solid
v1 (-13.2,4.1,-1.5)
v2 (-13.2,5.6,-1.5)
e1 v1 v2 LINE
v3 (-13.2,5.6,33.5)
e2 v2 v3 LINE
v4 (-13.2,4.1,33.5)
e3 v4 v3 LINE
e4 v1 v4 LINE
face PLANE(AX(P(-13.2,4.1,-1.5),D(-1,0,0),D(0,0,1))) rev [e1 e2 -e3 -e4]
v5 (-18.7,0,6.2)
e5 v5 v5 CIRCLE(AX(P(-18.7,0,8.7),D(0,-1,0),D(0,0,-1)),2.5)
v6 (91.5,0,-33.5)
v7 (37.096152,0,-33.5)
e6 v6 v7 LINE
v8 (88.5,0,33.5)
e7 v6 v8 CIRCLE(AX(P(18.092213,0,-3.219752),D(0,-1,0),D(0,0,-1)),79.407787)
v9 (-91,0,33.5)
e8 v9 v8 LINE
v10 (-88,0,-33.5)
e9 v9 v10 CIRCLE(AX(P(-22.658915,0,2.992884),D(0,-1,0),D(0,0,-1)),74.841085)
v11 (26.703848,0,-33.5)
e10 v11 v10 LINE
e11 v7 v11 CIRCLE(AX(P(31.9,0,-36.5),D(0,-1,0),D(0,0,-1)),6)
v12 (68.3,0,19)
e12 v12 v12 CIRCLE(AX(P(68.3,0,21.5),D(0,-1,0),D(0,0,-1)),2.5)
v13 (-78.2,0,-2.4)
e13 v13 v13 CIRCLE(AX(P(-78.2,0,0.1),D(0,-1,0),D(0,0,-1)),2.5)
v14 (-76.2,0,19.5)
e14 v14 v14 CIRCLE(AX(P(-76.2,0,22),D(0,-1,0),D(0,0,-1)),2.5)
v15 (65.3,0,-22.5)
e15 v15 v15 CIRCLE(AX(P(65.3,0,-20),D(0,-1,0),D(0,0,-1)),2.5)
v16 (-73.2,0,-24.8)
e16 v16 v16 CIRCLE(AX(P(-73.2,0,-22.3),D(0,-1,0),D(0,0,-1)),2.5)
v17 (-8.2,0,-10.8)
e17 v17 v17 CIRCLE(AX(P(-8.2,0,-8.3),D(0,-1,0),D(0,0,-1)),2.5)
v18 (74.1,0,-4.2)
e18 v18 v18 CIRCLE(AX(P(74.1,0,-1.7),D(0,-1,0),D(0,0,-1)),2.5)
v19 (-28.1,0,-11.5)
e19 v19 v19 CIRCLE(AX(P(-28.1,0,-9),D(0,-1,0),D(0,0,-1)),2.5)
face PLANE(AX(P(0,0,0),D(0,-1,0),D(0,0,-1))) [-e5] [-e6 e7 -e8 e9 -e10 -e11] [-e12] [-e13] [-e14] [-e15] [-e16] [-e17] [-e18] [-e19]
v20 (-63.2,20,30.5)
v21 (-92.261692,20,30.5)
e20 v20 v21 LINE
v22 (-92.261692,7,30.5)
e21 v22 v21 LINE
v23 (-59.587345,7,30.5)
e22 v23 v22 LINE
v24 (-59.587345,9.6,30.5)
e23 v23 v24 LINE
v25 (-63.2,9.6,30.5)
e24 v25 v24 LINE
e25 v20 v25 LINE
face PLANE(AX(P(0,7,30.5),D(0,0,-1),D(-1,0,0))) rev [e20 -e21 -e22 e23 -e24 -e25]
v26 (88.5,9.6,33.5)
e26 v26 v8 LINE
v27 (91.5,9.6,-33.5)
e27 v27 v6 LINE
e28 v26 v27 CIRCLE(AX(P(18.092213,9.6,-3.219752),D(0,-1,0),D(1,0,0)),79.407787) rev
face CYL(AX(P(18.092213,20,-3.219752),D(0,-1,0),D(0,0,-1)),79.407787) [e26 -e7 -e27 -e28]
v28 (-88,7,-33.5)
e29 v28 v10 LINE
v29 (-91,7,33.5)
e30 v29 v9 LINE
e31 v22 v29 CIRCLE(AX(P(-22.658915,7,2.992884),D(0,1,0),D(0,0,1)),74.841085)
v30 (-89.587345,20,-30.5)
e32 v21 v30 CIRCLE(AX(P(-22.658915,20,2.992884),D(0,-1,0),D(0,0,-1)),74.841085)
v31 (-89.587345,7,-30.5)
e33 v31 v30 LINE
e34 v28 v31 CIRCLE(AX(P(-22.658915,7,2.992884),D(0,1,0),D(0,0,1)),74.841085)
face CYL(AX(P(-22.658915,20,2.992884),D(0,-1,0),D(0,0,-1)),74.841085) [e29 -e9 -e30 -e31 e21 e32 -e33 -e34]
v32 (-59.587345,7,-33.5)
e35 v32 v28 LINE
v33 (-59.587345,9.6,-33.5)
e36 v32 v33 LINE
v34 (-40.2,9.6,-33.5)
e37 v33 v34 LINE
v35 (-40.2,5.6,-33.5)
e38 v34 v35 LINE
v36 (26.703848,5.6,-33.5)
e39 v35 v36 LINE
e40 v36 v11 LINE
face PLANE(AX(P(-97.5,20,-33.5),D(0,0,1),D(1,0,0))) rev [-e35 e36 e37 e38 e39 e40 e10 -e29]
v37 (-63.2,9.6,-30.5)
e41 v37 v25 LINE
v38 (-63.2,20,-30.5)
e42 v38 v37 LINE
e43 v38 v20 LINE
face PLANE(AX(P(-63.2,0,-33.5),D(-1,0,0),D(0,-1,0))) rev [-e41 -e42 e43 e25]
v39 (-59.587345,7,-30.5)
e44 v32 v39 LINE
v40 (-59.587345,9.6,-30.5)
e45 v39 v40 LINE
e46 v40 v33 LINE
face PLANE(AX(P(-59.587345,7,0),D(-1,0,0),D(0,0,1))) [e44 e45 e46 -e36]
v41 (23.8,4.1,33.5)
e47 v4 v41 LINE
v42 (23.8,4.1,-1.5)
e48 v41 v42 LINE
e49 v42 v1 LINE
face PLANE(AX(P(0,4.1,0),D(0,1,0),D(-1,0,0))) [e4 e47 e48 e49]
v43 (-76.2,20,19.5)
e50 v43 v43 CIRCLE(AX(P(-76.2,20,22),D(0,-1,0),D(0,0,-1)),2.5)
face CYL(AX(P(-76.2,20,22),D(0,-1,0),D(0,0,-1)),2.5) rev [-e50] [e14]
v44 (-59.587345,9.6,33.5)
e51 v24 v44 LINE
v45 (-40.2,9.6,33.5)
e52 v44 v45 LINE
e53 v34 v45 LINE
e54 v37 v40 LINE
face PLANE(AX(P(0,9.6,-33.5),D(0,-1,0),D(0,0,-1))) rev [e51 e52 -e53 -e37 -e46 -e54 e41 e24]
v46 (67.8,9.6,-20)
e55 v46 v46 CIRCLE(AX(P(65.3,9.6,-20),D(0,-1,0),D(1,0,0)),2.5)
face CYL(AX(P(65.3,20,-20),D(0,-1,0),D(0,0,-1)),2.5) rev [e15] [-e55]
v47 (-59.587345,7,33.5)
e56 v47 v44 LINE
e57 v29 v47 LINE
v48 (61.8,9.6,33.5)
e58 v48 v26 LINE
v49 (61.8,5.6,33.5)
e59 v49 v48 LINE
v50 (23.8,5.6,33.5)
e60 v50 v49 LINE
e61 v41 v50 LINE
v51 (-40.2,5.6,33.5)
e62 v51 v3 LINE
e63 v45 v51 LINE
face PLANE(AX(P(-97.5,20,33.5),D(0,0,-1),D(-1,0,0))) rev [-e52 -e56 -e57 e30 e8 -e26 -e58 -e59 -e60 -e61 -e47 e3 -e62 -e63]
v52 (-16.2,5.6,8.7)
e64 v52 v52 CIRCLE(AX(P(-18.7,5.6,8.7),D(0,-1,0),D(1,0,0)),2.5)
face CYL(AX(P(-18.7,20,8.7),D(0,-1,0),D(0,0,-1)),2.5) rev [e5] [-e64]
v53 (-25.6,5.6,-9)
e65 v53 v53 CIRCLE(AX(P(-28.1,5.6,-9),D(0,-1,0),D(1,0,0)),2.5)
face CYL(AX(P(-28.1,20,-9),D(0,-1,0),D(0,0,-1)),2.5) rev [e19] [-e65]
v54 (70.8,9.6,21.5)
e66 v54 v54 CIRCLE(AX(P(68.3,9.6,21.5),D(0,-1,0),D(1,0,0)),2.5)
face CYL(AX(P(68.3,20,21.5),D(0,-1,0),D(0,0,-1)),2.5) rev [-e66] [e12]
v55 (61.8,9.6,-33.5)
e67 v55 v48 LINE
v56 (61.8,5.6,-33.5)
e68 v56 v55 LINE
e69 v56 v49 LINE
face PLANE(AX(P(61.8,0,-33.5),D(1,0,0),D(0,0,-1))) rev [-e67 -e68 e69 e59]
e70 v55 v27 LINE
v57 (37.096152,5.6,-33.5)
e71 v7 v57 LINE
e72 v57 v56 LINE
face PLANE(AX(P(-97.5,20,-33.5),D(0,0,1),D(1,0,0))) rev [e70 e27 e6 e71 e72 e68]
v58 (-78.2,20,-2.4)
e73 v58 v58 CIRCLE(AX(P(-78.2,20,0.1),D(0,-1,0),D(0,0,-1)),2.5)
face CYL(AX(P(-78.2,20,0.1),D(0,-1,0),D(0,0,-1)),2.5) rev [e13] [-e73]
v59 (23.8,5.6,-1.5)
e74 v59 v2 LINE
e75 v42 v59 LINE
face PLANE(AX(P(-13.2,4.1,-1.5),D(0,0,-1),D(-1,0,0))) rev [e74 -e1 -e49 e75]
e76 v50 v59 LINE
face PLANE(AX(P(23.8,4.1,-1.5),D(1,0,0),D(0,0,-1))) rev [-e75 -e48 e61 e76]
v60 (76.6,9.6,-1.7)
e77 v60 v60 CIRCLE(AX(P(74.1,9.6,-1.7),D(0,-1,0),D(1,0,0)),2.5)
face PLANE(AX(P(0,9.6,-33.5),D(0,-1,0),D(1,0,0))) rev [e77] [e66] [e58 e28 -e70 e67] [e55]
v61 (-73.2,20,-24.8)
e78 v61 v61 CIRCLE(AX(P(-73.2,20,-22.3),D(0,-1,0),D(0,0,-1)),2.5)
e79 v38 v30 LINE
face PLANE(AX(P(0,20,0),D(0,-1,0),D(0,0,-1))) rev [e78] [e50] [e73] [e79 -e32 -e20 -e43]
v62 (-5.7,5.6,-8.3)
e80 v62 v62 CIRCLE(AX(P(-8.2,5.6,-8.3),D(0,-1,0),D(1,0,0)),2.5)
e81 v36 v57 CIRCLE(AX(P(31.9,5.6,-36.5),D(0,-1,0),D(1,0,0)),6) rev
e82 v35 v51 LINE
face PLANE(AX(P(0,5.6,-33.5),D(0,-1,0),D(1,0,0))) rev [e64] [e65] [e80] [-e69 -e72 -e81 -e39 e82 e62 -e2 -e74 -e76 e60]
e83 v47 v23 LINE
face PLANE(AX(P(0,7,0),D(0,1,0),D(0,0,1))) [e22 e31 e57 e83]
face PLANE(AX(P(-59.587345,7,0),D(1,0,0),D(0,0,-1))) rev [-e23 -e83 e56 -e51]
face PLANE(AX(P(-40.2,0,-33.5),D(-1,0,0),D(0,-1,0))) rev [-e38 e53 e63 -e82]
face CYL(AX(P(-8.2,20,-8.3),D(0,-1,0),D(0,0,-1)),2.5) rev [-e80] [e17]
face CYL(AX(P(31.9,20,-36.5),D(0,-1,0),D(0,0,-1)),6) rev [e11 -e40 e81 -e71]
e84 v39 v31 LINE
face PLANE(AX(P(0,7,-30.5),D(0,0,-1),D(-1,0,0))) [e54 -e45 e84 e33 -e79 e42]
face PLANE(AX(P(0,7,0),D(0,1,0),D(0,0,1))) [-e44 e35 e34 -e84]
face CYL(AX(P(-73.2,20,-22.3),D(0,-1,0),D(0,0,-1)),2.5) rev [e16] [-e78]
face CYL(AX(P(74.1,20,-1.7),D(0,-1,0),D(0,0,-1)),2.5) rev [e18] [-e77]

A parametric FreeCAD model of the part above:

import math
import FreeCAD as App
import Part
import Sketcher

V = App.Vector


def add_polygon(sketch, points):
    """Adds a closed chain of lines whose ends are joined by coincident constraints."""
    first, n = sketch.GeometryCount, len(points)
    for a, b in zip(points, points[1:] + points[:1]):
        sketch.addGeometry(Part.LineSegment(App.Vector(*a, 0), App.Vector(*b, 0)), False)
    for i in range(n):
        sketch.addConstraint(Sketcher.Constraint("Coincident", first + i, 2, first + (i + 1) % n, 1))

doc = App.newDocument("Part")
params = doc.addObject("Spreadsheet::Sheet", "Params")
for row, (alias, value) in enumerate([
    ("sketch1_width", "195 mm"),
    ("sketch1_height", "67 mm"),
    ("pad1_length", "20 mm"),
    ("sketch2_diameter", "12 mm"),
    ("sketch2_width", "9 mm"),
    ("sketch2_width2", "6 mm"),
    ("sketch2_width3", "9.5 mm"),
    ("sketch2_width4", "6.5 mm"),
    ("pocket1_length", "20 mm"),
    ("sketch3_width", "102 mm"),
    ("sketch3_width2", "23 mm"),
    ("sketch3_height", "4 mm"),
    ("sketch3_width3", "160.7 mm"),
    ("sketch3_height2", "10.4 mm"),
    ("sketch4_width", "30 mm"),
    ("sketch4_height", "3 mm"),
    ("pocket3_length", "13 mm"),
    ("sketch5_diameter", "5 mm"),
    ("sketch6_width", "37 mm"),
    ("sketch6_height", "35 mm"),
    ("pocket5_length", "1.5 mm"),
], start=1):
    params.set(f"A{row}", alias)
    params.set(f"B{row}", "=" + value)
    params.setAlias(f"B{row}", alias)

body = doc.addObject("PartDesign::Body", "Body")

sketch1 = doc.addObject("Sketcher::SketchObject", "Sketch")
body.addObject(sketch1)
sketch1.AttachmentSupport = (doc.XZ_Plane, [""])
sketch1.MapMode = "FlatFace"
add_polygon(sketch1, [(-98, -34), (-98, 34), (98, 34), (98, -34)])
sketch1.addConstraint(Sketcher.Constraint("Vertical", 0))
sketch1.addConstraint(Sketcher.Constraint("Horizontal", 1))
sketch1.addConstraint(Sketcher.Constraint("Vertical", 2))
sketch1.addConstraint(Sketcher.Constraint("Horizontal", 3))
sketch1.addConstraint(Sketcher.Constraint("Symmetric", 0, 2, 2, 2, -1, 1))
sketch1.addConstraint(Sketcher.Constraint("DistanceX", 1, 1, 1, 2, 195.0))
sketch1.addConstraint(Sketcher.Constraint("DistanceY", 0, 1, 0, 2, 67.0))
sketch1.setExpression("Constraints[9]", "Params.sketch1_width")
sketch1.setExpression("Constraints[10]", "Params.sketch1_height")
pad1 = doc.addObject("PartDesign::Pad", "Pad")
body.addObject(pad1)
pad1.Profile = sketch1
pad1.setExpression("Length", "Params.pad1_length")
pad1.Reversed = True

sketch2 = doc.addObject("Sketcher::SketchObject", "Sketch001")
body.addObject(sketch2)
sketch2.AttachmentSupport = (doc.XZ_Plane, [""])
sketch2.MapMode = "FlatFace"
sketch2.addGeometry(Part.LineSegment(V(98, -3, 0), V(98, 34, 0)), False)
sketch2.addGeometry(Part.LineSegment(V(98, 34, 0), V(88, 34, 0)), False)
sketch2.addGeometry(Part.ArcOfCircle(Part.Circle(V(18, -3, 0), V(0, 0, 1), 79), math.radians(0), math.radians(28)), False)
sketch2.addGeometry(Part.LineSegment(V(98, -34, 0), V(98, -3, 0)), False)
sketch2.addGeometry(Part.ArcOfCircle(Part.Circle(V(18, -3, 0), V(0, 0, 1), 79), math.radians(-22), math.radians(0)), False)
sketch2.addGeometry(Part.LineSegment(V(92, -34, 0), V(98, -34, 0)), False)
sketch2.addGeometry(Part.ArcOfCircle(Part.Circle(V(-23, 3, 0), V(0, 0, 1), 75), math.radians(180), math.radians(209)), False)
sketch2.addGeometry(Part.LineSegment(V(-98, 3, 0), V(-98, -34, 0)), False)
sketch2.addGeometry(Part.LineSegment(V(-98, -34, 0), V(-88, -34, 0)), False)
sketch2.addGeometry(Part.ArcOfCircle(Part.Circle(V(-23, 3, 0), V(0, 0, 1), 75), math.radians(156), math.radians(180)), False)
sketch2.addGeometry(Part.LineSegment(V(-91, 34, 0), V(-98, 34, 0)), False)
sketch2.addGeometry(Part.LineSegment(V(-98, 34, 0), V(-98, 3, 0)), False)
sketch2.addGeometry(Part.Circle(V(32, -36, 0), V(0, 0, 1), 6), False)
sketch2.addConstraint(Sketcher.Constraint("Coincident", 0, 2, 1, 1))
sketch2.addConstraint(Sketcher.Constraint("Coincident", 1, 2, 2, 2))
sketch2.addConstraint(Sketcher.Constraint("Tangent", 2, 1, 0, 1))
sketch2.addConstraint(Sketcher.Constraint("Tangent", 3, 2, 4, 2))
sketch2.addConstraint(Sketcher.Constraint("Coincident", 4, 1, 5, 1))
sketch2.addConstraint(Sketcher.Constraint("Coincident", 5, 2, 3, 1))
sketch2.addConstraint(Sketcher.Constraint("Tangent", 6, 1, 7, 1))
sketch2.addConstraint(Sketcher.Constraint("Coincident", 7, 2, 8, 1))
sketch2.addConstraint(Sketcher.Constraint("Coincident", 8, 2, 6, 2))
sketch2.addConstraint(Sketcher.Constraint("Coincident", 9, 1, 10, 1))
sketch2.addConstraint(Sketcher.Constraint("Coincident", 10, 2, 11, 1))
sketch2.addConstraint(Sketcher.Constraint("Tangent", 11, 2, 9, 2))
sketch2.addConstraint(Sketcher.Constraint("Vertical", 0))
sketch2.addConstraint(Sketcher.Constraint("Horizontal", 1))
sketch2.addConstraint(Sketcher.Constraint("Vertical", 3))
sketch2.addConstraint(Sketcher.Constraint("Horizontal", 5))
sketch2.addConstraint(Sketcher.Constraint("Vertical", 7))
sketch2.addConstraint(Sketcher.Constraint("Horizontal", 8))
sketch2.addConstraint(Sketcher.Constraint("Horizontal", 10))
sketch2.addConstraint(Sketcher.Constraint("Vertical", 11))
sketch2.addConstraint(Sketcher.Constraint("Coincident", 4, 3, 2, 3))
sketch2.addConstraint(Sketcher.Constraint("Coincident", 9, 3, 6, 3))
sketch2.addConstraint(Sketcher.Constraint("Equal", 2, 4))
sketch2.addConstraint(Sketcher.Constraint("Equal", 6, 9))
sketch2.addConstraint(Sketcher.Constraint("Symmetric", 0, 2, 7, 2, -1, 1))
sketch2.addConstraint(Sketcher.Constraint("Horizontal", 5, 2, 7, 2))
sketch2.addConstraint(Sketcher.Constraint("Horizontal", 1, 2, 9, 1))
sketch2.addConstraint(Sketcher.Constraint("Diameter", 12, 12.0))
sketch2.addConstraint(Sketcher.Constraint("DistanceX", 1, 2, 1, 1, 9.0))
sketch2.addConstraint(Sketcher.Constraint("DistanceX", 5, 1, 5, 2, 6.0))
sketch2.addConstraint(Sketcher.Constraint("DistanceX", 8, 1, 8, 2, 9.5))
sketch2.addConstraint(Sketcher.Constraint("DistanceX", 10, 2, 10, 1, 6.5))
sketch2.addConstraint(Sketcher.Constraint("DistanceX", 8, 2, -1, 1, 88.0))
sketch2.addConstraint(Sketcher.Constraint("DistanceY", 12, 3, 0, 2, 70.0))
sketch2.addConstraint(Sketcher.Constraint("DistanceY", 12, 3, 4, 1, 3.0))
sketch2.addConstraint(Sketcher.Constraint("DistanceX", -1, 1, 12, 3, 31.9))
sketch2.setExpression("Constraints[27]", "Params.sketch2_diameter")
sketch2.setExpression("Constraints[28]", "Params.sketch2_width")
sketch2.setExpression("Constraints[29]", "Params.sketch2_width2")
sketch2.setExpression("Constraints[30]", "Params.sketch2_width3")
sketch2.setExpression("Constraints[31]", "Params.sketch2_width4")
pocket1 = doc.addObject("PartDesign::Pocket", "Pocket")
body.addObject(pocket1)
pocket1.Profile = sketch2
pocket1.setExpression("Length", "Params.pocket1_length")

sketch3 = doc.addObject("Sketcher::SketchObject", "Sketch002")
body.addObject(sketch3)
sketch3.AttachmentSupport = (doc.XY_Plane, [""])
sketch3.MapMode = "FlatFace"
sketch3.AttachmentOffset = App.Placement(V(0, 0, 33.5), App.Rotation())
add_polygon(sketch3, [(-63.2, 9.6), (-63.2, 20), (97.5, 20), (97.5, 9.6), (61.8, 9.6), (61.8, 5.6), (-40.2, 5.6), (-40.2, 9.6)])
sketch3.addConstraint(Sketcher.Constraint("Vertical", 0))
sketch3.addConstraint(Sketcher.Constraint("Horizontal", 1))
sketch3.addConstraint(Sketcher.Constraint("Vertical", 2))
sketch3.addConstraint(Sketcher.Constraint("Horizontal", 3))
sketch3.addConstraint(Sketcher.Constraint("Vertical", 4))
sketch3.addConstraint(Sketcher.Constraint("Horizontal", 5))
sketch3.addConstraint(Sketcher.Constraint("Vertical", 6))
sketch3.addConstraint(Sketcher.Constraint("Horizontal", 7))
sketch3.addConstraint(Sketcher.Constraint("Horizontal", 3, 2, 6, 2))
sketch3.addConstraint(Sketcher.Constraint("DistanceX", 5, 2, 5, 1, 102.0))
sketch3.addConstraint(Sketcher.Constraint("DistanceX", 7, 2, 7, 1, 23.0))
sketch3.addConstraint(Sketcher.Constraint("DistanceY", 4, 2, 4, 1, 4.0))
sketch3.addConstraint(Sketcher.Constraint("DistanceX", 1, 1, 1, 2, 160.7))
sketch3.addConstraint(Sketcher.Constraint("DistanceY", 0, 1, 0, 2, 10.4))
sketch3.addConstraint(Sketcher.Constraint("DistanceY", -1, 1, 0, 2, 20.0))
sketch3.addConstraint(Sketcher.Constraint("DistanceX", 0, 2, -1, 1, 63.2))
sketch3.setExpression("Constraints[17]", "Params.sketch3_width")
sketch3.setExpression("Constraints[18]", "Params.sketch3_width2")
sketch3.setExpression("Constraints[19]", "Params.sketch3_height")
sketch3.setExpression("Constraints[20]", "Params.sketch3_width3")
sketch3.setExpression("Constraints[21]", "Params.sketch3_height2")
pocket2 = doc.addObject("PartDesign::Pocket", "Pocket001")
body.addObject(pocket2)
pocket2.Profile = sketch3
pocket2.Type = "ThroughAll"

sketch4 = doc.addObject("Sketcher::SketchObject", "Sketch003")
body.addObject(sketch4)
sketch4.AttachmentSupport = (doc.XZ_Plane, [""])
sketch4.MapMode = "FlatFace"
sketch4.AttachmentOffset = App.Placement(V(0, 0, -7), App.Rotation())
sketch4.addGeometry(Part.ArcOfCircle(Part.Circle(V(-22.7, 3, 0), V(0, 0, 1), 74.8), math.radians(-153.42), math.radians(-150.82)), False)
sketch4.addGeometry(Part.LineSegment(V(-89.6, -30.5, 0), V(-59.6, -30.5, 0)), False)
sketch4.addGeometry(Part.LineSegment(V(-59.6, -30.5, 0), V(-59.6, -33.5, 0)), False)
sketch4.addGeometry(Part.LineSegment(V(-59.6, -33.5, 0), V(-88, -33.5, 0)), False)
sketch4.addGeometry(Part.ArcOfCircle(Part.Circle(V(-22.7, 3, 0), V(0, 0, 1), 74.8), math.radians(155.94), math.radians(158.44)), False)
sketch4.addGeometry(Part.LineSegment(V(-91, 33.5, 0), V(-59.6, 33.5, 0)), False)
sketch4.addGeometry(Part.LineSegment(V(-59.6, 33.5, 0), V(-59.6, 30.5, 0)), False)
sketch4.addGeometry(Part.LineSegment(V(-59.6, 30.5, 0), V(-92.3, 30.5, 0)), False)
sketch4.addConstraint(Sketcher.Constraint("Coincident", 0, 1, 1, 1))
sketch4.addConstraint(Sketcher.Constraint("Coincident", 1, 2, 2, 1))
sketch4.addConstraint(Sketcher.Constraint("Coincident", 2, 2, 3, 1))
sketch4.addConstraint(Sketcher.Constraint("Coincident", 3, 2, 0, 2))
sketch4.addConstraint(Sketcher.Constraint("Coincident", 4, 1, 5, 1))
sketch4.addConstraint(Sketcher.Constraint("Coincident", 5, 2, 6, 1))
sketch4.addConstraint(Sketcher.Constraint("Coincident", 6, 2, 7, 1))
sketch4.addConstraint(Sketcher.Constraint("Coincident", 7, 2, 4, 2))
sketch4.addConstraint(Sketcher.Constraint("Horizontal", 1))
sketch4.addConstraint(Sketcher.Constraint("Vertical", 2))
sketch4.addConstraint(Sketcher.Constraint("Horizontal", 3))
sketch4.addConstraint(Sketcher.Constraint("Horizontal", 5))
sketch4.addConstraint(Sketcher.Constraint("Vertical", 6))
sketch4.addConstraint(Sketcher.Constraint("Horizontal", 7))
sketch4.addConstraint(Sketcher.Constraint("Coincident", 4, 3, 0, 3))
sketch4.addConstraint(Sketcher.Constraint("Equal", 0, 4))
sketch4.addConstraint(Sketcher.Constraint("Symmetric", 2, 2, 5, 2, -1))
sketch4.addConstraint(Sketcher.Constraint("Equal", 2, 6))
sketch4.addConstraint(Sketcher.Constraint("DistanceX", 1, 1, 1, 2, 30.0))
sketch4.addConstraint(Sketcher.Constraint("DistanceY", 2, 2, 2, 1, 3.0))
sketch4.addConstraint(Sketcher.Constraint("DistanceX", 3, 2, -1, 1, 88.0))
sketch4.addConstraint(Sketcher.Constraint("DistanceX", 4, 1, -1, 1, 91.0))
sketch4.addConstraint(Sketcher.Constraint("DistanceY", 0, 1, 4, 1, 64.0))
sketch4.addConstraint(Sketcher.Constraint("Radius", 0, 74.841086))
sketch4.setExpression("Constraints[18]", "Params.sketch4_width")
sketch4.setExpression("Constraints[19]", "Params.sketch4_height")
pocket3 = doc.addObject("PartDesign::Pocket", "Pocket002")
body.addObject(pocket3)
pocket3.Profile = sketch4
pocket3.setExpression("Length", "Params.pocket3_length")

sketch5 = doc.addObject("Sketcher::SketchObject", "Sketch004")
body.addObject(sketch5)
sketch5.AttachmentSupport = (doc.XZ_Plane, [""])
sketch5.MapMode = "FlatFace"
sketch5.addGeometry(Part.Circle(V(-28.1, -9, 0), V(0, 0, 1), 2.5), False)
sketch5.addGeometry(Part.Circle(V(-8.2, -8.3, 0), V(0, 0, 1), 2.5), False)
sketch5.addGeometry(Part.Circle(V(-18.7, 8.7, 0), V(0, 0, 1), 2.5), False)
sketch5.addGeometry(Part.Circle(V(-76.2, 22, 0), V(0, 0, 1), 2.5), False)
sketch5.addGeometry(Part.Circle(V(-78.2, 0.1, 0), V(0, 0, 1), 2.5), False)
sketch5.addGeometry(Part.Circle(V(-73.2, -22.3, 0), V(0, 0, 1), 2.5), False)
sketch5.addGeometry(Part.Circle(V(65.3, -20, 0), V(0, 0, 1), 2.5), False)
sketch5.addGeometry(Part.Circle(V(74.1, -1.7, 0), V(0, 0, 1), 2.5), False)
sketch5.addGeometry(Part.Circle(V(68.3, 21.5, 0), V(0, 0, 1), 2.5), False)
sketch5.addConstraint(Sketcher.Constraint("Equal", 0, 1))
sketch5.addConstraint(Sketcher.Constraint("Equal", 1, 2))
sketch5.addConstraint(Sketcher.Constraint("Equal", 2, 3))
sketch5.addConstraint(Sketcher.Constraint("Equal", 3, 4))
sketch5.addConstraint(Sketcher.Constraint("Equal", 4, 5))
sketch5.addConstraint(Sketcher.Constraint("Equal", 5, 6))
sketch5.addConstraint(Sketcher.Constraint("Equal", 6, 7))
sketch5.addConstraint(Sketcher.Constraint("Equal", 7, 8))
sketch5.addConstraint(Sketcher.Constraint("Diameter", 0, 5.0))
sketch5.addConstraint(Sketcher.Constraint("DistanceY", 0, 3, -1, 1, 9.0))
sketch5.addConstraint(Sketcher.Constraint("DistanceY", -1, 1, 3, 3, 22.0))
sketch5.addConstraint(Sketcher.Constraint("DistanceY", 6, 3, -1, 1, 20.0))
sketch5.addConstraint(Sketcher.Constraint("DistanceY", 1, 3, 2, 3, 17.0))
sketch5.addConstraint(Sketcher.Constraint("DistanceX", 3, 3, 1, 3, 68.0))
sketch5.addConstraint(Sketcher.Constraint("DistanceX", 4, 3, 3, 3, 2.0))
sketch5.addConstraint(Sketcher.Constraint("DistanceX", 4, 3, 5, 3, 5.0))
sketch5.addConstraint(Sketcher.Constraint("DistanceY", 5, 3, 2, 3, 31.0))
sketch5.addConstraint(Sketcher.Constraint("DistanceX", 2, 3, 6, 3, 84.0))
sketch5.addConstraint(Sketcher.Constraint("DistanceX", 6, 3, 8, 3, 3.0))
sketch5.addConstraint(Sketcher.Constraint("DistanceX", 0, 3, -1, 1, 28.1))
sketch5.addConstraint(Sketcher.Constraint("DistanceX", 1, 3, -1, 1, 8.2))
sketch5.addConstraint(Sketcher.Constraint("DistanceY", 1, 3, -1, 1, 8.3))
sketch5.addConstraint(Sketcher.Constraint("DistanceX", 2, 3, -1, 1, 18.7))
sketch5.addConstraint(Sketcher.Constraint("DistanceY", -1, 1, 4, 3, 0.1))
sketch5.addConstraint(Sketcher.Constraint("DistanceX", -1, 1, 7, 3, 74.1))
sketch5.addConstraint(Sketcher.Constraint("DistanceY", 7, 3, -1, 1, 1.7))
sketch5.addConstraint(Sketcher.Constraint("DistanceY", -1, 1, 8, 3, 21.5))
sketch5.setExpression("Constraints[8]", "Params.sketch5_diameter")
pocket4 = doc.addObject("PartDesign::Pocket", "Pocket003")
body.addObject(pocket4)
pocket4.Profile = sketch5
pocket4.Type = "ThroughAll"

sketch6 = doc.addObject("Sketcher::SketchObject", "Sketch005")
body.addObject(sketch6)
sketch6.AttachmentSupport = (doc.XZ_Plane, [""])
sketch6.MapMode = "FlatFace"
sketch6.AttachmentOffset = App.Placement(V(0, 0, -5.6), App.Rotation())
add_polygon(sketch6, [(-13, -2), (-13, 34), (24, 34), (24, -2)])
sketch6.addConstraint(Sketcher.Constraint("Vertical", 0))
sketch6.addConstraint(Sketcher.Constraint("Horizontal", 1))
sketch6.addConstraint(Sketcher.Constraint("Vertical", 2))
sketch6.addConstraint(Sketcher.Constraint("Horizontal", 3))
sketch6.addConstraint(Sketcher.Constraint("DistanceX", 1, 1, 1, 2, 37.0))
sketch6.addConstraint(Sketcher.Constraint("DistanceY", 0, 1, 0, 2, 35.0))
sketch6.addConstraint(Sketcher.Constraint("DistanceX", 0, 2, -1, 1, 13.2))
sketch6.addConstraint(Sketcher.Constraint("DistanceY", -1, 1, 0, 2, 33.5))
sketch6.setExpression("Constraints[8]", "Params.sketch6_width")
sketch6.setExpression("Constraints[9]", "Params.sketch6_height")
pocket5 = doc.addObject("PartDesign::Pocket", "Pocket004")
body.addObject(pocket5)
pocket5.Profile = sketch6
pocket5.setExpression("Length", "Params.pocket5_length")
pocket5.Reversed = True

doc.recompute()
